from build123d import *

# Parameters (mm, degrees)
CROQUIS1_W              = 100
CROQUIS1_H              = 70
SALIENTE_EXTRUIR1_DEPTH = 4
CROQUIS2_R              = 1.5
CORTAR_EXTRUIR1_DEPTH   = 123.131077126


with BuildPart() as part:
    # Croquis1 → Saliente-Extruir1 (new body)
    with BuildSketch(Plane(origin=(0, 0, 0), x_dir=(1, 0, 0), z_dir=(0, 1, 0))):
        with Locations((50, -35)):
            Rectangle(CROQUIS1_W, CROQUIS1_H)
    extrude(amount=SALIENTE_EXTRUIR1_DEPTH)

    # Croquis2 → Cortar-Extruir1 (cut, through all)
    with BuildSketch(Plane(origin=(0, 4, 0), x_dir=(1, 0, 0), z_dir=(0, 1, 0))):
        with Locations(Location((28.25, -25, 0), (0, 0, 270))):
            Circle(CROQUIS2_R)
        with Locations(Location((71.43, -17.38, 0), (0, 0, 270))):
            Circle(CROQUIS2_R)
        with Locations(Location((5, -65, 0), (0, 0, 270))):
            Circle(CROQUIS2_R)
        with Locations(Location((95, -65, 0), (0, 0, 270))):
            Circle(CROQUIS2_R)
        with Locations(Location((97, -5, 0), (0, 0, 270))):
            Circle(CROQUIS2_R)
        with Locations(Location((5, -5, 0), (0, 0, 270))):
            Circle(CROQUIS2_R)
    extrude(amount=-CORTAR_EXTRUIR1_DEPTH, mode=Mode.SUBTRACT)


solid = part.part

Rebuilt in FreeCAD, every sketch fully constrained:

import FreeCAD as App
import Part
import Sketcher
from FreeCAD import Vector
Q = App.Units.Quantity

doc = App.newDocument("Part")
body = doc.addObject("PartDesign::Body", "Body")

sketch1 = doc.addObject("Sketcher::SketchObject", "Sketch")
body.addObject(sketch1)
sketch1.AttachmentSupport = (doc.XZ_Plane, [""])
sketch1.MapMode = "FlatFace"
sketch1.addGeometry([
    Part.LineSegment(Vector(0, 0, 0), Vector(0, 70, 0)),
    Part.LineSegment(Vector(0, 70, 0), Vector(100, 70, 0)),
    Part.LineSegment(Vector(100, 70, 0), Vector(100, 0, 0)),
    Part.LineSegment(Vector(100, 0, 0), Vector(0, 0, 0)),
], False)
sketch1.addConstraint([
    Sketcher.Constraint("Coincident", 0, 2, 1, 1),
    Sketcher.Constraint("Coincident", 1, 2, 2, 1),
    Sketcher.Constraint("Coincident", 2, 2, 3, 1),
    Sketcher.Constraint("Coincident", 3, 2, 0, 1),
    Sketcher.Constraint("Vertical", 0),
    Sketcher.Constraint("Horizontal", 1),
    Sketcher.Constraint("Vertical", 2),
    Sketcher.Constraint("Horizontal", 3),
    Sketcher.Constraint("Coincident", 3, 2, -1, 1),
    Sketcher.Constraint("DistanceX", 1, 1, 1, 2, Q("100 mm")),
    Sketcher.Constraint("DistanceY", 0, 1, 0, 2, Q("70 mm")),
])
pad1 = doc.addObject("PartDesign::Pad", "Pad")
body.addObject(pad1)
pad1.Profile = sketch1
pad1.Length = 4
pad1.Reversed = True

sketch2 = doc.addObject("Sketcher::SketchObject", "Sketch001")
body.addObject(sketch2)
sketch2.AttachmentSupport = (doc.XZ_Plane, [""])
sketch2.MapMode = "FlatFace"
sketch2.AttachmentOffset = App.Placement(Vector(0, 0, -4), App.Rotation())
sketch2.addGeometry([
    Part.Circle(Vector(28.2, 25, 0), Vector(0, 0, 1), 1.5),
    Part.Circle(Vector(71.4, 17.4, 0), Vector(0, 0, 1), 1.5),
    Part.Circle(Vector(5, 65, 0), Vector(0, 0, 1), 1.5),
    Part.Circle(Vector(95, 65, 0), Vector(0, 0, 1), 1.5),
    Part.Circle(Vector(97, 5, 0), Vector(0, 0, 1), 1.5),
    Part.Circle(Vector(5, 5, 0), Vector(0, 0, 1), 1.5),
], False)
sketch2.addConstraint([
    Sketcher.Constraint("Equal", 0, 1),
    Sketcher.Constraint("Equal", 1, 2),
    Sketcher.Constraint("Equal", 2, 3),
    Sketcher.Constraint("Equal", 3, 4),
    Sketcher.Constraint("Equal", 4, 5),
    Sketcher.Constraint("Horizontal", 2, 3, 3, 3),
    Sketcher.Constraint("Horizontal", 4, 3, 5, 3),
    Sketcher.Constraint("Vertical", 2, 3, 5, 3),
    Sketcher.Constraint("Diameter", 0, Q("3 mm")),
    Sketcher.Constraint("DistanceY", -1, 1, 0, 3, Q("25 mm")),
    Sketcher.Constraint("DistanceX", -1, 1, 2, 3, Q("5 mm")),
    Sketcher.Constraint("DistanceY", -1, 1, 2, 3, Q("65 mm")),
    Sketcher.Constraint("DistanceX", -1, 1, 3, 3, Q("95 mm")),
    Sketcher.Constraint("DistanceX", -1, 1, 4, 3, Q("97 mm")),
    Sketcher.Constraint("DistanceY", -1, 1, 4, 3, Q("5 mm")),
    Sketcher.Constraint("DistanceX", -1, 1, 0, 3, Q("28.25 mm")),
    Sketcher.Constraint("DistanceX", -1, 1, 1, 3, Q("71.43 mm")),
    Sketcher.Constraint("DistanceY", -1, 1, 1, 3, Q("17.38 mm")),
])
pocket1 = doc.addObject("PartDesign::Pocket", "Pocket")
body.addObject(pocket1)
pocket1.Profile = sketch2
pocket1.Type = "ThroughAll"
pocket1.Reversed = True

doc.recompute()
